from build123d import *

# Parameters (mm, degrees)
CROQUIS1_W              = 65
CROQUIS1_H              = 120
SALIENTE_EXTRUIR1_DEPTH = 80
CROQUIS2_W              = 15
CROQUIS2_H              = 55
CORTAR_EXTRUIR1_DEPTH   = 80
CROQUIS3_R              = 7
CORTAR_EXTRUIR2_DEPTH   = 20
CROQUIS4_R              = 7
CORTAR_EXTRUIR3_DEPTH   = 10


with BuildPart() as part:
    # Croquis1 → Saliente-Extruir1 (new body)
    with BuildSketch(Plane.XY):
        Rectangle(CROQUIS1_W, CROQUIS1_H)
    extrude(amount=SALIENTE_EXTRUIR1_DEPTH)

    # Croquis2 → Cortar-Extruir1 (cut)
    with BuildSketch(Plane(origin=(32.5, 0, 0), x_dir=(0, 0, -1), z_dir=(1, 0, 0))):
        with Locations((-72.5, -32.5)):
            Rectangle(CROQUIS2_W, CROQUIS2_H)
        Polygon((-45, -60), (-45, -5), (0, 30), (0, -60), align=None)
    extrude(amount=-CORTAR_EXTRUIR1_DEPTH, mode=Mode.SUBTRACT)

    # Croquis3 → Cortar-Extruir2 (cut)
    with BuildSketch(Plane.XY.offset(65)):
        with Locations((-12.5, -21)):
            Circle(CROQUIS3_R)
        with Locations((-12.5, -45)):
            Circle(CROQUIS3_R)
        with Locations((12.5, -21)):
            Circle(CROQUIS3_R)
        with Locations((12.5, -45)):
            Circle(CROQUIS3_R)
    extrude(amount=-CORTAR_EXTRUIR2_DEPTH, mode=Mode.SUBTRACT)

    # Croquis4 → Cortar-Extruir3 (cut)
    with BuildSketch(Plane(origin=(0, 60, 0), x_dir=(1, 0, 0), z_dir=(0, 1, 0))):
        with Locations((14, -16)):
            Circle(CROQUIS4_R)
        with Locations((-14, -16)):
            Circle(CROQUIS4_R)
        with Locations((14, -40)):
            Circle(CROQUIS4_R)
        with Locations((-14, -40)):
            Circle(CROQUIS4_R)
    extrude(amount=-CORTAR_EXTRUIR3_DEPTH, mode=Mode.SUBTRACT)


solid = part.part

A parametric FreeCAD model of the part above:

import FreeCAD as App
import Part
import Sketcher
from FreeCAD import Vector
Q = App.Units.Quantity

doc = App.newDocument("Part")
body = doc.addObject("PartDesign::Body", "Body")

# Sketch on XY plane
sketch1 = body.newObject("Sketcher::SketchObject", "Sketch")
sketch1.AttachmentSupport = (doc.getObject("XY_Plane"), [""])
sketch1.MapMode = "FlatFace"
sketch1.addGeometry(Part.LineSegment(Vector(-32.5, 60, 0), Vector(-32.5, -60, 0)), False)
sketch1.addGeometry(Part.LineSegment(Vector(-32.5, -60, 0), Vector(32.5, -60, 0)), False)
sketch1.addGeometry(Part.LineSegment(Vector(32.5, -60, 0), Vector(32.5, 60, 0)), False)
sketch1.addGeometry(Part.LineSegment(Vector(32.5, 60, 0), Vector(-32.5, 60, 0)), False)
sketch1.addConstraint(Sketcher.Constraint("Coincident", 0, 2, 1, 1))
sketch1.addConstraint(Sketcher.Constraint("Coincident", 1, 2, 2, 1))
sketch1.addConstraint(Sketcher.Constraint("Coincident", 2, 2, 3, 1))
sketch1.addConstraint(Sketcher.Constraint("Coincident", 3, 2, 0, 1))
sketch1.addConstraint(Sketcher.Constraint("Vertical", 0))
sketch1.addConstraint(Sketcher.Constraint("Horizontal", 1))
sketch1.addConstraint(Sketcher.Constraint("Vertical", 2))
sketch1.addConstraint(Sketcher.Constraint("Horizontal", 3))
sketch1.addConstraint(Sketcher.Constraint("Symmetric", 0, 2, 2, 2, -1, 1))
sketch1.addConstraint(Sketcher.Constraint("DistanceX", 1, 1, 1, 2, Q("65 mm")))
sketch1.addConstraint(Sketcher.Constraint("DistanceY", 0, 2, 0, 1, Q("120 mm")))
pad1 = body.newObject("PartDesign::Pad", "Pad")
pad1.Profile = sketch1
pad1.Length = 80

# Sketch on YZ plane
sketch2 = body.newObject("Sketcher::SketchObject", "Sketch001")
sketch2.AttachmentSupport = (doc.getObject("YZ_Plane"), [""])
sketch2.MapMode = "FlatFace"
sketch2.AttachmentOffset = App.Placement(Vector(0, 0, 32.5), App.Rotation())
sketch2.addGeometry(Part.LineSegment(Vector(-5, 80, 0), Vector(-60, 80, 0)), False)
sketch2.addGeometry(Part.LineSegment(Vector(-60, 80, 0), Vector(-60, 65, 0)), False)
sketch2.addGeometry(Part.LineSegment(Vector(-60, 65, 0), Vector(-5, 65, 0)), False)
sketch2.addGeometry(Part.LineSegment(Vector(-5, 65, 0), Vector(-5, 80, 0)), False)
sketch2.addGeometry(Part.LineSegment(Vector(-5, 45, 0), Vector(-60, 45, 0)), False)
sketch2.addGeometry(Part.LineSegment(Vector(-60, 45, 0), Vector(-60, 0, 0)), False)
sketch2.addGeometry(Part.LineSegment(Vector(-60, 0, 0), Vector(30, 0, 0)), False)
sketch2.addGeometry(Part.LineSegment(Vector(30, 0, 0), Vector(-5, 45, 0)), False)
sketch2.addConstraint(Sketcher.Constraint("Coincident", 0, 2, 1, 1))
sketch2.addConstraint(Sketcher.Constraint("Coincident", 1, 2, 2, 1))
sketch2.addConstraint(Sketcher.Constraint("Coincident", 2, 2, 3, 1))
sketch2.addConstraint(Sketcher.Constraint("Coincident", 3, 2, 0, 1))
sketch2.addConstraint(Sketcher.Constraint("Coincident", 4, 2, 5, 1))
sketch2.addConstraint(Sketcher.Constraint("Coincident", 5, 2, 6, 1))
sketch2.addConstraint(Sketcher.Constraint("Coincident", 6, 2, 7, 1))
sketch2.addConstraint(Sketcher.Constraint("Coincident", 7, 2, 4, 1))
sketch2.addConstraint(Sketcher.Constraint("Horizontal", 0))
sketch2.addConstraint(Sketcher.Constraint("Vertical", 1))
sketch2.addConstraint(Sketcher.Constraint("Horizontal", 2))
sketch2.addConstraint(Sketcher.Constraint("Vertical", 3))
sketch2.addConstraint(Sketcher.Constraint("Horizontal", 4))
sketch2.addConstraint(Sketcher.Constraint("Vertical", 5))
sketch2.addConstraint(Sketcher.Constraint("Horizontal", 6))
sketch2.addConstraint(Sketcher.Constraint("PointOnObject", 5, 2, -1))
sketch2.addConstraint(Sketcher.Constraint("Vertical", 1, 2, 4, 2))
sketch2.addConstraint(Sketcher.Constraint("Vertical", 3, 2, 7, 2))
sketch2.addConstraint(Sketcher.Constraint("DistanceX", 0, 2, 0, 1, Q("55 mm")))
sketch2.addConstraint(Sketcher.Constraint("DistanceX", 6, 1, 6, 2, Q("90 mm")))
sketch2.addConstraint(Sketcher.Constraint("DistanceY", 1, 2, 1, 1, Q("15 mm")))
sketch2.addConstraint(Sketcher.Constraint("DistanceY", 5, 2, 5, 1, Q("45 mm")))
sketch2.addConstraint(Sketcher.Constraint("DistanceX", 0, 2, -1, 1, Q("60 mm")))
sketch2.addConstraint(Sketcher.Constraint("DistanceY", -1, 1, 0, 2, Q("80 mm")))
pocket1 = body.newObject("PartDesign::Pocket", "Pocket")
pocket1.Profile = sketch2
pocket1.Length = 80

# Sketch on XY plane
sketch3 = body.newObject("Sketcher::SketchObject", "Sketch002")
sketch3.AttachmentSupport = (doc.getObject("XY_Plane"), [""])
sketch3.MapMode = "FlatFace"
sketch3.AttachmentOffset = App.Placement(Vector(0, 0, 65), App.Rotation())
sketch3.addGeometry(Part.Circle(Vector(-12.5, -21, 0), Vector(0, 0, 1), 7), False)
sketch3.addGeometry(Part.Circle(Vector(-12.5, -45, 0), Vector(0, 0, 1), 7), False)
sketch3.addGeometry(Part.Circle(Vector(12.5, -21, 0), Vector(0, 0, 1), 7), False)
sketch3.addGeometry(Part.Circle(Vector(12.5, -45, 0), Vector(0, 0, 1), 7), False)
sketch3.addConstraint(Sketcher.Constraint("Equal", 0, 1))
sketch3.addConstraint(Sketcher.Constraint("Equal", 1, 2))
sketch3.addConstraint(Sketcher.Constraint("Equal", 2, 3))
sketch3.addConstraint(Sketcher.Constraint("Symmetric", 0, 3, 2, 3, -2))
sketch3.addConstraint(Sketcher.Constraint("Symmetric", 1, 3, 3, 3, -2))
sketch3.addConstraint(Sketcher.Constraint("Vertical", 0, 3, 1, 3))
sketch3.addConstraint(Sketcher.Constraint("Diameter", 0, Q("14 mm")))
sketch3.addConstraint(Sketcher.Constraint("DistanceY", 0, 3, -1, 1, Q("21 mm")))
sketch3.addConstraint(Sketcher.Constraint("DistanceY", 1, 3, -1, 1, Q("45 mm")))
sketch3.addConstraint(Sketcher.Constraint("DistanceX", 0, 3, 2, 3, Q("25 mm")))
pocket2 = body.newObject("PartDesign::Pocket", "Pocket001")
pocket2.Profile = sketch3
pocket2.Length = 20

# Sketch on XZ plane
sketch4 = body.newObject("Sketcher::SketchObject", "Sketch003")
sketch4.AttachmentSupport = (doc.getObject("XZ_Plane"), [""])
sketch4.MapMode = "FlatFace"
sketch4.AttachmentOffset = App.Placement(Vector(0, 0, -60), App.Rotation())
sketch4.addGeometry(Part.Circle(Vector(14, 16, 0), Vector(0, 0, 1), 7), False)
sketch4.addGeometry(Part.Circle(Vector(-14, 16, 0), Vector(0, 0, 1), 7), False)
sketch4.addGeometry(Part.Circle(Vector(14, 40, 0), Vector(0, 0, 1), 7), False)
sketch4.addGeometry(Part.Circle(Vector(-14, 40, 0), Vector(0, 0, 1), 7), False)
sketch4.addConstraint(Sketcher.Constraint("Equal", 0, 1))
sketch4.addConstraint(Sketcher.Constraint("Equal", 1, 2))
sketch4.addConstraint(Sketcher.Constraint("Equal", 2, 3))
sketch4.addConstraint(Sketcher.Constraint("Symmetric", 0, 3, 1, 3, -2))
sketch4.addConstraint(Sketcher.Constraint("Symmetric", 2, 3, 3, 3, -2))
sketch4.addConstraint(Sketcher.Constraint("Vertical", 0, 3, 2, 3))
sketch4.addConstraint(Sketcher.Constraint("Diameter", 0, Q("14 mm")))
sketch4.addConstraint(Sketcher.Constraint("DistanceX", -1, 1, 0, 3, Q("14 mm")))
sketch4.addConstraint(Sketcher.Constraint("DistanceY", -1, 1, 0, 3, Q("16 mm")))
sketch4.addConstraint(Sketcher.Constraint("DistanceY", -1, 1, 2, 3, Q("40 mm")))
pocket3 = body.newObject("PartDesign::Pocket", "Pocket002")
pocket3.Profile = sketch4
pocket3.Length = 10
pocket3.Reversed = True

doc.recompute()
